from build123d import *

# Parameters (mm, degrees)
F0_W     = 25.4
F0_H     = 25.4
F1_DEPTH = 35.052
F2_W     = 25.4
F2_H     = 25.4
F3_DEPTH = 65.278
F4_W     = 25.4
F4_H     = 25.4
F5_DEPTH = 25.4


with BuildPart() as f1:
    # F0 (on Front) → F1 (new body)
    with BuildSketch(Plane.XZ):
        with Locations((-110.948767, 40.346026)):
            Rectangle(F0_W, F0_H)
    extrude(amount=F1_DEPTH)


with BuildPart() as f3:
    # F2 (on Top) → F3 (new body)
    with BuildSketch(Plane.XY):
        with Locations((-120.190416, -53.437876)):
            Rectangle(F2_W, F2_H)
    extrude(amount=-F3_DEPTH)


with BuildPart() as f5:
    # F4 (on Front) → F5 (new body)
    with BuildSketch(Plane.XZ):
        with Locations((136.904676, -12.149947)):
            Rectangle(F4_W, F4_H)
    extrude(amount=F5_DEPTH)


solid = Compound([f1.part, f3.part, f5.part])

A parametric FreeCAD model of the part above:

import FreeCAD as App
import Part
import Sketcher
from FreeCAD import Vector
Q = App.Units.Quantity


def add_polygon(sketch, points):
    """Adds a closed chain of lines whose ends are joined by coincident constraints."""
    first, n = sketch.GeometryCount, len(points)
    for a, b in zip(points, points[1:] + points[:1]):
        sketch.addGeometry(Part.LineSegment(App.Vector(*a, 0), App.Vector(*b, 0)), False)
    for i in range(n):
        sketch.addConstraint(Sketcher.Constraint("Coincident", first + i, 2, first + (i + 1) % n, 1))

doc = App.newDocument("Part")
body = doc.addObject("PartDesign::Body", "Body")

# Sketch on XZ plane
sketch1 = body.newObject("Sketcher::SketchObject", "Sketch")
sketch1.AttachmentSupport = (doc.getObject("XZ_Plane"), [""])
sketch1.MapMode = "FlatFace"
add_polygon(sketch1, [(-123.648767, 53.046026), (-123.648767, 27.646026), (-98.248767, 27.646026), (-98.248767, 53.046026)])  # lines 0-3
sketch1.addConstraint([
    Sketcher.Constraint("Vertical", 0),
    Sketcher.Constraint("Horizontal", 1),
    Sketcher.Constraint("Vertical", 2),
    Sketcher.Constraint("Horizontal", 3),
    Sketcher.Constraint("Equal", 3, 0),
    Sketcher.Constraint("DistanceX", 1, 1, 1, 2, Q("1 in")),
    Sketcher.Constraint("DistanceX", 0, 2, -1, 1, Q("123.648767 mm")),
    Sketcher.Constraint("DistanceY", -1, 1, 0, 2, Q("27.646026 mm")),
])
pad1 = body.newObject("PartDesign::Pad", "Pad")
pad1.Profile = sketch1
pad1.Length = Q("1.38 in")
body2 = doc.addObject("PartDesign::Body", "Body001")

# Sketch on XY plane
sketch2 = body2.newObject("Sketcher::SketchObject", "Sketch001")
sketch2.AttachmentSupport = (doc.getObject("XY_Plane001"), [""])
sketch2.MapMode = "FlatFace"
add_polygon(sketch2, [(-132.890416, -40.737876), (-132.890416, -66.137876), (-107.490416, -66.137876), (-107.490416, -40.737876)])  # lines 0-3
sketch2.addConstraint([
    Sketcher.Constraint("Vertical", 0),
    Sketcher.Constraint("Horizontal", 1),
    Sketcher.Constraint("Vertical", 2),
    Sketcher.Constraint("Horizontal", 3),
    Sketcher.Constraint("Equal", 3, 0),
    Sketcher.Constraint("DistanceX", 1, 1, 1, 2, Q("1 in")),
    Sketcher.Constraint("DistanceX", 0, 2, -1, 1, Q("132.890416 mm")),
    Sketcher.Constraint("DistanceY", 0, 2, -1, 1, Q("66.137876 mm")),
])
pad2 = body2.newObject("PartDesign::Pad", "Pad001")
pad2.Profile = sketch2
pad2.Length = Q("2.57 in")
pad2.Reversed = True
body3 = doc.addObject("PartDesign::Body", "Body002")

# Sketch on XZ plane
sketch3 = body3.newObject("Sketcher::SketchObject", "Sketch002")
sketch3.AttachmentSupport = (doc.getObject("XZ_Plane002"), [""])
sketch3.MapMode = "FlatFace"
add_polygon(sketch3, [(124.204676, 0.550053), (124.204676, -24.849947), (149.604676, -24.849947), (149.604676, 0.550053)])  # lines 0-3
sketch3.addConstraint([
    Sketcher.Constraint("Vertical", 0),
    Sketcher.Constraint("Horizontal", 1),
    Sketcher.Constraint("Vertical", 2),
    Sketcher.Constraint("Horizontal", 3),
    Sketcher.Constraint("Equal", 3, 0),
    Sketcher.Constraint("DistanceX", 1, 1, 1, 2, Q("1 in")),
    Sketcher.Constraint("DistanceX", -1, 1, 0, 2, Q("124.204676 mm")),
    Sketcher.Constraint("DistanceY", 0, 2, -1, 1, Q("24.849947 mm")),
])
pad3 = body3.newObject("PartDesign::Pad", "Pad002")
pad3.Profile = sketch3
pad3.Length = Q("1 in")

doc.recompute()
